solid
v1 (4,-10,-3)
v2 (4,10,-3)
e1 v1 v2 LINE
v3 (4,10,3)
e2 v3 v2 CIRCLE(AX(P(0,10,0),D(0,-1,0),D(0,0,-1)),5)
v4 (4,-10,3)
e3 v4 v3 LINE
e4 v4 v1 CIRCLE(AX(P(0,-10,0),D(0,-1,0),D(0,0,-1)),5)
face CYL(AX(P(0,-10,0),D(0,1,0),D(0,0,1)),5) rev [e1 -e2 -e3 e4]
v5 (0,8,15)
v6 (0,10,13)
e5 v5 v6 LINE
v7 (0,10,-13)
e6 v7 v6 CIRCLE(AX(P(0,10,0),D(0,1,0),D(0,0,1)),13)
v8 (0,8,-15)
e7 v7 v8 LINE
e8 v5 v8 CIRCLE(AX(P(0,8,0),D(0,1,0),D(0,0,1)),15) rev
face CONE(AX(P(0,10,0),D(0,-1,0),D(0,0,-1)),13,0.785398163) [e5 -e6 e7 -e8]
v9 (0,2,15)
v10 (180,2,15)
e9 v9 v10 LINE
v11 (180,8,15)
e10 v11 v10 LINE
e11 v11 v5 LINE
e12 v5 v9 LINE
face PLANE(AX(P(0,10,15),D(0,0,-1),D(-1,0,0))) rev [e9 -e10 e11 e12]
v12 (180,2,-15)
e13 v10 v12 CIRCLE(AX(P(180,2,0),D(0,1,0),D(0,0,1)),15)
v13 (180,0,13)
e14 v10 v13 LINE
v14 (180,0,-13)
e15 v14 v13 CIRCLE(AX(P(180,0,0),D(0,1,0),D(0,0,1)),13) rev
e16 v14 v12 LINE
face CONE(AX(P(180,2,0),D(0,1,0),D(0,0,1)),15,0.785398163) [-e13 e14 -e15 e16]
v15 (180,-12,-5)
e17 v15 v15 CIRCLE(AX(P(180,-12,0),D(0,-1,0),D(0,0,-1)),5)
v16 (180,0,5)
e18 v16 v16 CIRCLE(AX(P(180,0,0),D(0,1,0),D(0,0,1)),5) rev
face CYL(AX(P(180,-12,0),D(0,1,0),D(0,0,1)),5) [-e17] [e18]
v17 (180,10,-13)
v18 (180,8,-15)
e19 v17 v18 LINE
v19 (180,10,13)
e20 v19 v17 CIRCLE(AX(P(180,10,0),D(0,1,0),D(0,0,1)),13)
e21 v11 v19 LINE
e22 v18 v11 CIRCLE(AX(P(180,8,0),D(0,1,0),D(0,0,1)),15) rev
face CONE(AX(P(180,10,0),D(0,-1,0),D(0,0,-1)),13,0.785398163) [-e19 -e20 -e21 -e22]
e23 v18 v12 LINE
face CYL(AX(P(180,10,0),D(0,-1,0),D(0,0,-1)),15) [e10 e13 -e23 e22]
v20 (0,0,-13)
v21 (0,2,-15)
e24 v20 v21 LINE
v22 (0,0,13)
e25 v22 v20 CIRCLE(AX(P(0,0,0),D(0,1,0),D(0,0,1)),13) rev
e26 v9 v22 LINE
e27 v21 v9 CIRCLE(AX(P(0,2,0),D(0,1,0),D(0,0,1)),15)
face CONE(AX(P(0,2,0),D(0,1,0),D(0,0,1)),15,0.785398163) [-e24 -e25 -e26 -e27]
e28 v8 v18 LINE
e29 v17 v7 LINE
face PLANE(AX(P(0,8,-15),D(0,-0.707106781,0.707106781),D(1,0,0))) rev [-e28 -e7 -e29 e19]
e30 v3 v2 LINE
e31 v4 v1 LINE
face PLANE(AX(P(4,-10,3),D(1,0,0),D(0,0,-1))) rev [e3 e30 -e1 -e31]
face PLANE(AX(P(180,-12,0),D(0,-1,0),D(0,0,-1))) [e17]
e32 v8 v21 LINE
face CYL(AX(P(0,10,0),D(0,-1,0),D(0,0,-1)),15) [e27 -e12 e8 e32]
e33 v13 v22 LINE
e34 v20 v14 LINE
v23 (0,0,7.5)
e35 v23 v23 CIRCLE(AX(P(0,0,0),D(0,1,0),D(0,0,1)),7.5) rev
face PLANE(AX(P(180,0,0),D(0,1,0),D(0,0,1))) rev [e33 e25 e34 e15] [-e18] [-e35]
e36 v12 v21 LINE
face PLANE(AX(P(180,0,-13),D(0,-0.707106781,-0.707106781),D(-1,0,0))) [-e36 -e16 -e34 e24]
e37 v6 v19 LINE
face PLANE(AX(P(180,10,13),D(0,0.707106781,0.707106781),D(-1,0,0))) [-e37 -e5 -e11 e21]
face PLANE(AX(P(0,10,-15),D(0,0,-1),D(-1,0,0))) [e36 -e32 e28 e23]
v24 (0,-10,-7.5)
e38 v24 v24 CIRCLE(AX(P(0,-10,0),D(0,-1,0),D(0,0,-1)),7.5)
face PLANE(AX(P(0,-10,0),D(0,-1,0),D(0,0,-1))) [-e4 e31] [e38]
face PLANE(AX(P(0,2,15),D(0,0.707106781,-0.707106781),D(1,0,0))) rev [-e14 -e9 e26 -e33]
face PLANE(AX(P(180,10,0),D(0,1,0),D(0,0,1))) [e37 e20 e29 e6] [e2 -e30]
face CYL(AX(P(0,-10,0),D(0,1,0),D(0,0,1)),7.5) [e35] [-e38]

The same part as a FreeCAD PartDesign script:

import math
import FreeCAD as App
import Part
import Sketcher


def edges_at(feature, points):
    """Names of the edges that pass closest to the given points."""
    edges = feature.Shape.Edges
    near = lambda p: min(range(len(edges)), key=lambda i: edges[i].distToShape(Part.Vertex(*p))[0])
    return sorted({f"Edge{near(p) + 1}" for p in points})

doc = App.newDocument("Part")
body = doc.addObject("PartDesign::Body", "Body")

# Sketch on XZ plane
sketch1 = body.newObject("Sketcher::SketchObject", "Sketch")
sketch1.AttachmentSupport = (doc.getObject("XZ_Plane"), [""])
sketch1.MapMode = "FlatFace"
sketch1.addGeometry([
    Part.LineSegment(App.Vector(180, -15, 0), App.Vector(0, -15, 0)),
    Part.ArcOfCircle(Part.Circle(App.Vector(0, 0, 0), App.Vector(0, 0, 1), 15), math.radians(90), math.radians(270)),
    Part.LineSegment(App.Vector(0, 15, 0), App.Vector(180, 15, 0)),
    Part.ArcOfCircle(Part.Circle(App.Vector(180, 0, 0), App.Vector(0, 0, 1), 15), math.radians(-90), math.radians(90)),
], False)
sketch1.addConstraint([
    Sketcher.Constraint("Tangent", 0, 2, 1, 2),
    Sketcher.Constraint("Tangent", 1, 1, 2, 1),
    Sketcher.Constraint("Tangent", 2, 2, 3, 2),
    Sketcher.Constraint("Tangent", 3, 1, 0, 1),
    Sketcher.Constraint("Horizontal", 0),
    Sketcher.Constraint("Horizontal", 2),
    Sketcher.Constraint("Coincident", 1, 3, -1, 1),
    Sketcher.Constraint("Radius", 1, 15.0),
    Sketcher.Constraint("DistanceX", 0, 2, 0, 1, 180.0),
])
pad1 = body.newObject("PartDesign::Pad", "Pad")
pad1.Profile = sketch1
pad1.Length = 10
pad1.Reversed = True
doc.recompute()

chamfer = body.newObject("PartDesign::Chamfer", "Chamfer")
chamfer.Base = (pad1, edges_at(pad1, [
    (90, 10, -15),
    (-15, 10, 0),
    (90, 10, 15),
    (-15, 0, 0),
    (90, 0, -15),
    (195, 0, 0),
    (90, 0, 15),
    (195, 10, 0),
]))
chamfer.Size = 2

# Sketch on XZ plane
sketch2 = body.newObject("Sketcher::SketchObject", "Sketch001")
sketch2.AttachmentSupport = (doc.getObject("XZ_Plane"), [""])
sketch2.MapMode = "FlatFace"
sketch2.addGeometry(Part.Circle(App.Vector(0, 0, 0), App.Vector(0, 0, 1), 8), False)
sketch2.addConstraint([
    Sketcher.Constraint("Coincident", 0, 3, -1, 1),
    Sketcher.Constraint("Diameter", 0, 15.0),
])
pad2 = body.newObject("PartDesign::Pad", "Pad001")
pad2.Profile = sketch2
pad2.Length = 10

# Sketch on XZ plane
sketch3 = body.newObject("Sketcher::SketchObject", "Sketch002")
sketch3.AttachmentSupport = (doc.getObject("XZ_Plane"), [""])
sketch3.MapMode = "FlatFace"
sketch3.addGeometry([
    Part.LineSegment(App.Vector(4, -3, 0), App.Vector(4, 3, 0)),
    Part.ArcOfCircle(Part.Circle(App.Vector(0, 0, 0), App.Vector(0, 0, 1), 5), math.radians(37), math.radians(323)),
], False)
sketch3.addConstraint([
    Sketcher.Constraint("Coincident", 0, 1, 1, 2),
    Sketcher.Constraint("Coincident", 1, 1, 0, 2),
    Sketcher.Constraint("Vertical", 0),
    Sketcher.Constraint("Coincident", 1, 3, -1, 1),
    Sketcher.Constraint("Radius", 1, 5.0),
    Sketcher.Constraint("DistanceY", 0, 1, 0, 2, 6.0),
])
pocket1 = body.newObject("PartDesign::Pocket", "Pocket")
pocket1.Profile = sketch3
pocket1.Type = "ThroughAll"
pocket1.Midplane = True

# Sketch on XZ plane
sketch4 = body.newObject("Sketcher::SketchObject", "Sketch003")
sketch4.AttachmentSupport = (doc.getObject("XZ_Plane"), [""])
sketch4.MapMode = "FlatFace"
sketch4.addGeometry(Part.Circle(App.Vector(180, 0, 0), App.Vector(0, 0, 1), 5), False)
sketch4.addConstraint([
    Sketcher.Constraint("PointOnObject", 0, 3, -1),
    Sketcher.Constraint("Diameter", 0, 10.0),
    Sketcher.Constraint("DistanceX", -1, 1, 0, 3, 180.0),
])
pad3 = body.newObject("PartDesign::Pad", "Pad002")
pad3.Profile = sketch4
pad3.Length = 12

doc.recompute()
